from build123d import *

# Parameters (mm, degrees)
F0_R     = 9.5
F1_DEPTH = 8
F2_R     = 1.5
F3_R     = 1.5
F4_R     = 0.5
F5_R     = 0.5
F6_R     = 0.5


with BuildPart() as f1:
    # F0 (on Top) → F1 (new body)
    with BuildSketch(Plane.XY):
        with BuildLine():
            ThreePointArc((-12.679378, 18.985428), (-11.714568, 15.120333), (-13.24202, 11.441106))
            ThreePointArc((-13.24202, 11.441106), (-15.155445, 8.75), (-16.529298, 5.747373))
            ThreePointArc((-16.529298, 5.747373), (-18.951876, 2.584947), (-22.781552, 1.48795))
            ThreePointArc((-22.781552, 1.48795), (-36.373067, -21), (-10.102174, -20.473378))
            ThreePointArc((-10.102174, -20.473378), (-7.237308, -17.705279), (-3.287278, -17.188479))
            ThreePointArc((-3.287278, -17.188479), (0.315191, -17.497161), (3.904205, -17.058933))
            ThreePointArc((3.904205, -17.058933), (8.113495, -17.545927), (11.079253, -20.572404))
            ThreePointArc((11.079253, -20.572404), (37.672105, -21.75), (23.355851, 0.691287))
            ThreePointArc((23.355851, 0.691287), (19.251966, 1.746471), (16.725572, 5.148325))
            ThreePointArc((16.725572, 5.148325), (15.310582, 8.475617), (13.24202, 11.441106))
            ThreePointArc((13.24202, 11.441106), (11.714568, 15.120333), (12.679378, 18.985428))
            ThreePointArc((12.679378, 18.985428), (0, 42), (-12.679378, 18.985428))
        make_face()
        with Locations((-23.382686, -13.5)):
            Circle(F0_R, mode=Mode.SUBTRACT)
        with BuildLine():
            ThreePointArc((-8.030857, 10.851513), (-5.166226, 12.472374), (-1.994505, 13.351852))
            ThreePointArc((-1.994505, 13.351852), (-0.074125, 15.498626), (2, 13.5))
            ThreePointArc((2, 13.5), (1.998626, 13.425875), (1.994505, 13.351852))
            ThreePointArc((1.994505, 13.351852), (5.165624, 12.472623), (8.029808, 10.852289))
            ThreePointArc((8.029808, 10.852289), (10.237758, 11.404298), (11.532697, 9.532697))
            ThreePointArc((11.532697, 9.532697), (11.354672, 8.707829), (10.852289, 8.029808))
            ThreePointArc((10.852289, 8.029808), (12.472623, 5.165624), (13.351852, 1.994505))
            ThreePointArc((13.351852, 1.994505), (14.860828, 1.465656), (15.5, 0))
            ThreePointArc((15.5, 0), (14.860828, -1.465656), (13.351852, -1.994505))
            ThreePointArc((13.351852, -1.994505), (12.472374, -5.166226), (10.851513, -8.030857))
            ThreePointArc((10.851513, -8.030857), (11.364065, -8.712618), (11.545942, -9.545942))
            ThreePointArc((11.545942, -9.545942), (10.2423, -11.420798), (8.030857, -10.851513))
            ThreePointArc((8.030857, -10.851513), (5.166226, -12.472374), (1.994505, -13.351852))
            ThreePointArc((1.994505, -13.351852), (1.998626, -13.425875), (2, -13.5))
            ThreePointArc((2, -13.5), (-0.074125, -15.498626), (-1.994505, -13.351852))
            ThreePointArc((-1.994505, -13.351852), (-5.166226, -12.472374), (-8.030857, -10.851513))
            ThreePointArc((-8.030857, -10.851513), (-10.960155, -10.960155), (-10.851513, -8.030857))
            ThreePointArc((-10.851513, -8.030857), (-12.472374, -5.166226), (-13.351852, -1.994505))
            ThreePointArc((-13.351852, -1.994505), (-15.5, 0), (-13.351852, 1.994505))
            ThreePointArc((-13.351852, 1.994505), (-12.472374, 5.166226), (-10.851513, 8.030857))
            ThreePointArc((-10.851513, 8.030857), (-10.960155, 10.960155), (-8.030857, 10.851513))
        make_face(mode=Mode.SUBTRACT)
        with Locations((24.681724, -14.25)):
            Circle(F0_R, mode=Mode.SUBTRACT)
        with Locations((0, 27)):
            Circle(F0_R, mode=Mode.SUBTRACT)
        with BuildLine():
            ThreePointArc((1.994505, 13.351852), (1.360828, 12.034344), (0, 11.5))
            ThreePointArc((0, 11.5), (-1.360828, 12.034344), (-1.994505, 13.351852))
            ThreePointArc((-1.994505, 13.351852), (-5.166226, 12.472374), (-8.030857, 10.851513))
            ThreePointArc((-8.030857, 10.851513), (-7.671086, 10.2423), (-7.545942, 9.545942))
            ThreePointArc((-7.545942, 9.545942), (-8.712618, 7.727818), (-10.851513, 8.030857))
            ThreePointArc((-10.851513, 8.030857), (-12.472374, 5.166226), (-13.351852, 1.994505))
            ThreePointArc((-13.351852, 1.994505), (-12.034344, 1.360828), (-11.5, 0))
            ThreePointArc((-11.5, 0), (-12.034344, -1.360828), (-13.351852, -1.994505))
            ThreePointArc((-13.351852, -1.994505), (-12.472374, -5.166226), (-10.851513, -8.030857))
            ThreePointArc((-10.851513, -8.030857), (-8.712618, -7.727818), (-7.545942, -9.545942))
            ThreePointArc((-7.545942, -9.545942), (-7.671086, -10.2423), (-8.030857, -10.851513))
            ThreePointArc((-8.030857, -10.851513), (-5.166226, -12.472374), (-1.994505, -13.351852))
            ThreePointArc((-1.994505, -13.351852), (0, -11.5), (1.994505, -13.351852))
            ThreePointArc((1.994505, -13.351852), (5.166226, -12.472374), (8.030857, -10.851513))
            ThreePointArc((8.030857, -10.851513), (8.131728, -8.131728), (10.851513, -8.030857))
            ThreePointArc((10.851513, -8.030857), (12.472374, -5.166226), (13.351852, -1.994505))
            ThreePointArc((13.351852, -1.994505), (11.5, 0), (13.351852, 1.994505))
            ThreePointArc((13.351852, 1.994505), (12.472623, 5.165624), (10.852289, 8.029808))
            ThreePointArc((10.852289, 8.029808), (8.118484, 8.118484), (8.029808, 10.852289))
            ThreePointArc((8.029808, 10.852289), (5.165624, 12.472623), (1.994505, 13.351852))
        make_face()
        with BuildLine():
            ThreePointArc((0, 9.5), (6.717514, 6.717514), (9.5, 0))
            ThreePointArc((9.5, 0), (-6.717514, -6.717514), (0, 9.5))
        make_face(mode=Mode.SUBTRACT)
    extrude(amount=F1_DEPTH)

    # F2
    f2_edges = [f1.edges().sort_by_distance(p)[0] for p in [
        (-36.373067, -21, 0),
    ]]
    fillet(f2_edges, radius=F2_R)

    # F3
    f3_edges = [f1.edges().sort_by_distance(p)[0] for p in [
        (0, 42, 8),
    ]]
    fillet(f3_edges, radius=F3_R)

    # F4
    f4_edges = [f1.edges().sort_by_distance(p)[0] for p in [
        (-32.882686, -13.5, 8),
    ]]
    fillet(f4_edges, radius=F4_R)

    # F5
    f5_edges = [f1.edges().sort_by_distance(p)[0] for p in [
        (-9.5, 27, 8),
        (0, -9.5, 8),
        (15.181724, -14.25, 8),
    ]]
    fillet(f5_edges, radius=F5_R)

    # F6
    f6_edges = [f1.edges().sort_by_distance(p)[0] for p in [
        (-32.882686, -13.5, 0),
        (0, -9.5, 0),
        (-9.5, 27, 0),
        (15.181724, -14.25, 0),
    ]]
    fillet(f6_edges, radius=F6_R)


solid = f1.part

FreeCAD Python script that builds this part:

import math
import FreeCAD as App
import Part
import Sketcher

V = App.Vector


def edges_at(feature, points):
    """Names of the edges that pass closest to the given points."""
    edges = feature.Shape.Edges
    near = lambda p: min(range(len(edges)), key=lambda i: edges[i].distToShape(Part.Vertex(*p))[0])
    return sorted({f"Edge{near(p) + 1}" for p in points})

doc = App.newDocument("Part")
body = doc.addObject("PartDesign::Body", "Body")

sketch1 = doc.addObject("Sketcher::SketchObject", "Sketch")
body.addObject(sketch1)
sketch1.AttachmentSupport = (doc.XY_Plane, [""])
sketch1.MapMode = "FlatFace"
sketch1.addGeometry([
    Part.ArcOfCircle(Part.Circle(V(-18.05, 15.59, 0), V(0, 0, 1), 6.35), math.radians(-41), math.radians(32)),
    Part.ArcOfCircle(Part.Circle(V(0, 0, 0), V(0, 0, 1), 17.5), math.radians(139), math.radians(161)),
    Part.ArcOfCircle(Part.Circle(V(-22.53, 7.83, 0), V(0, 0, 1), 6.35), math.radians(-92), math.radians(-19)),
    Part.ArcOfCircle(Part.Circle(V(-23.38, -13.5, 0), V(0, 0, 1), 15), math.radians(88), math.radians(332)),
    Part.ArcOfCircle(Part.Circle(V(-4.48, -23.43, 0), V(0, 0, 1), 6.35), math.radians(79), math.radians(152)),
    Part.ArcOfCircle(Part.Circle(V(0, 0, 0), V(0, 0, 1), 17.5), math.radians(-101), math.radians(-77)),
    Part.ArcOfCircle(Part.Circle(V(5.32, -23.25, 0), V(0, 0, 1), 6.35), math.radians(25), math.radians(103)),
    Part.ArcOfCircle(Part.Circle(V(24.68, -14.25, 0), V(0, 0, 1), 15), math.radians(-155), math.radians(95)),
    Part.ArcOfCircle(Part.Circle(V(22.79, 7.02, 0), V(0, 0, 1), 6.35), math.radians(-163), math.radians(-85)),
    Part.ArcOfCircle(Part.Circle(V(0, 0, 0), V(0, 0, 1), 17.5), math.radians(17), math.radians(41)),
    Part.ArcOfCircle(Part.Circle(V(18.05, 15.59, 0), V(0, 0, 1), 6.35), math.radians(148), math.radians(221)),
    Part.ArcOfCircle(Part.Circle(V(0, 27, 0), V(0, 0, 1), 15), math.radians(-32), math.radians(212)),
    Part.Circle(V(-23.38, -13.5, 0), V(0, 0, 1), 9.5),
    Part.ArcOfCircle(Part.Circle(V(-9.55, -9.55, 0), V(0, 0, 1), 2), math.radians(131), math.radians(319)),
    Part.ArcOfCircle(Part.Circle(V(-9.55, -9.55, 0), V(0, 0, 1), 2), math.radians(0), math.radians(131)),
    Part.ArcOfCircle(Part.Circle(V(-9.55, -9.55, 0), V(0, 0, 1), 2), math.radians(-41), math.radians(0)),
    Part.ArcOfCircle(Part.Circle(V(0, -13.5, 0), V(0, 0, 1), 2), math.radians(176), math.radians(360)),
    Part.ArcOfCircle(Part.Circle(V(0, -13.5, 0), V(0, 0, 1), 2), math.radians(4), math.radians(176)),
    Part.ArcOfCircle(Part.Circle(V(0, -13.5, 0), V(0, 0, 1), 2), math.radians(0), math.radians(4.25)),
    Part.ArcOfCircle(Part.Circle(V(-13.5, 0, 0), V(0, 0, 1), 2), math.radians(86), math.radians(274)),
    Part.ArcOfCircle(Part.Circle(V(-13.5, 0, 0), V(0, 0, 1), 2), math.radians(0), math.radians(86)),
    Part.ArcOfCircle(Part.Circle(V(-13.5, 0, 0), V(0, 0, 1), 2), math.radians(-86), math.radians(0)),
    Part.ArcOfCircle(Part.Circle(V(0, 0, 0), V(0, 0, 1), 9.5), math.radians(90), math.radians(360)),
    Part.ArcOfCircle(Part.Circle(V(0, 0, 0), V(0, 0, 1), 9.5), math.radians(0), math.radians(90)),
    Part.ArcOfCircle(Part.Circle(V(9.55, -9.55, 0), V(0, 0, 1), 2), math.radians(-139), math.radians(0)),
    Part.ArcOfCircle(Part.Circle(V(9.55, -9.55, 0), V(0, 0, 1), 2), math.radians(49), math.radians(221)),
    Part.ArcOfCircle(Part.Circle(V(9.55, -9.55, 0), V(0, 0, 1), 2), math.radians(0), math.radians(49)),
    Part.Circle(V(24.68, -14.25, 0), V(0, 0, 1), 9.5),
    Part.ArcOfCircle(Part.Circle(V(13.5, 0, 0), V(0, 0, 1), 2), math.radians(0), math.radians(94)),
    Part.ArcOfCircle(Part.Circle(V(13.5, 0, 0), V(0, 0, 1), 2), math.radians(-94), math.radians(0)),
    Part.ArcOfCircle(Part.Circle(V(13.5, 0, 0), V(0, 0, 1), 2), math.radians(94), math.radians(266)),
    Part.ArcOfCircle(Part.Circle(V(-9.55, 9.55, 0), V(0, 0, 1), 2), math.radians(41), math.radians(229)),
    Part.ArcOfCircle(Part.Circle(V(-9.55, 9.55, 0), V(0, 0, 1), 2), math.radians(0), math.radians(41)),
    Part.ArcOfCircle(Part.Circle(V(-9.55, 9.55, 0), V(0, 0, 1), 2), math.radians(-131), math.radians(0)),
    Part.ArcOfCircle(Part.Circle(V(0, 13.5, 0), V(0, 0, 1), 2), math.radians(0), math.radians(184)),
    Part.ArcOfCircle(Part.Circle(V(0, 13.5, 0), V(0, 0, 1), 2), math.radians(-4.25), math.radians(0)),
    Part.ArcOfCircle(Part.Circle(V(0, 13.5, 0), V(0, 0, 1), 2), math.radians(-90), math.radians(-4)),
    Part.ArcOfCircle(Part.Circle(V(0, 13.5, 0), V(0, 0, 1), 2), math.radians(-176), math.radians(-90)),
    Part.Circle(V(0, 27, 0), V(0, 0, 1), 9.5),
    Part.ArcOfCircle(Part.Circle(V(9.53, 9.53, 0), V(0, 0, 1), 2), math.radians(0), math.radians(139)),
    Part.ArcOfCircle(Part.Circle(V(9.53, 9.53, 0), V(0, 0, 1), 2), math.radians(-49), math.radians(0)),
    Part.ArcOfCircle(Part.Circle(V(9.53, 9.53, 0), V(0, 0, 1), 2), math.radians(139), math.radians(311)),
], False)
sketch1.addConstraint([
    Sketcher.Constraint("Tangent", 0, 1, 1, 1),
    Sketcher.Constraint("Tangent", 1, 2, 2, 2),
    Sketcher.Constraint("Tangent", 2, 1, 3, 1),
    Sketcher.Constraint("Tangent", 3, 2, 4, 2),
    Sketcher.Constraint("Tangent", 4, 1, 5, 1),
    Sketcher.Constraint("Tangent", 5, 2, 6, 2),
    Sketcher.Constraint("Tangent", 6, 1, 7, 1),
    Sketcher.Constraint("Tangent", 7, 2, 8, 2),
    Sketcher.Constraint("Tangent", 8, 1, 9, 1),
    Sketcher.Constraint("Tangent", 9, 2, 10, 2),
    Sketcher.Constraint("Tangent", 10, 1, 11, 1),
    Sketcher.Constraint("Tangent", 11, 2, 0, 2),
    Sketcher.Constraint("Tangent", 13, 1, 14, 2),
    Sketcher.Constraint("Tangent", 14, 1, 15, 2),
    Sketcher.Constraint("Tangent", 15, 1, 13, 2),
    Sketcher.Constraint("Tangent", 16, 1, 17, 2),
    Sketcher.Constraint("Coincident", 17, 1, 18, 2),
    Sketcher.Constraint("Coincident", 18, 1, 16, 2),
    Sketcher.Constraint("Tangent", 19, 1, 20, 2),
    Sketcher.Constraint("Tangent", 20, 1, 21, 2),
    Sketcher.Constraint("Tangent", 21, 1, 19, 2),
    Sketcher.Constraint("Tangent", 22, 1, 23, 2),
    Sketcher.Constraint("Coincident", 23, 1, 22, 2),
    Sketcher.Constraint("Tangent", 24, 1, 25, 2),
    Sketcher.Constraint("Tangent", 25, 1, 26, 2),
    Sketcher.Constraint("Tangent", 26, 1, 24, 2),
    Sketcher.Constraint("Tangent", 28, 1, 29, 2),
    Sketcher.Constraint("Tangent", 29, 1, 30, 2),
    Sketcher.Constraint("Tangent", 30, 1, 28, 2),
    Sketcher.Constraint("Tangent", 31, 1, 32, 2),
    Sketcher.Constraint("Tangent", 32, 1, 33, 2),
    Sketcher.Constraint("Tangent", 33, 1, 31, 2),
    Sketcher.Constraint("Coincident", 34, 1, 35, 2),
    Sketcher.Constraint("Coincident", 35, 1, 36, 2),
    Sketcher.Constraint("Tangent", 36, 1, 37, 2),
    Sketcher.Constraint("Tangent", 37, 1, 34, 2),
    Sketcher.Constraint("Tangent", 39, 1, 40, 2),
    Sketcher.Constraint("Tangent", 40, 1, 41, 2),
    Sketcher.Constraint("Tangent", 41, 1, 39, 2),
    Sketcher.Constraint("Coincident", 9, 3, -1, 1),
    Sketcher.Constraint("Coincident", 22, 3, -1, 1),
    Sketcher.Constraint("Coincident", 12, 3, 3, 3),
    Sketcher.Constraint("Coincident", 27, 3, 7, 3),
    Sketcher.Constraint("Coincident", 36, 3, 34, 3),
    Sketcher.Constraint("Coincident", 38, 3, 11, 3),
    Sketcher.Constraint("Equal", 0, 2),
    Sketcher.Constraint("Equal", 4, 6),
    Sketcher.Constraint("Equal", 3, 7),
    Sketcher.Constraint("Equal", 6, 8),
    Sketcher.Constraint("Equal", 8, 10),
    Sketcher.Constraint("Equal", 7, 11),
    Sketcher.Constraint("Equal", 15, 16),
    Sketcher.Constraint("Equal", 16, 17),
    Sketcher.Constraint("Equal", 17, 19),
    Sketcher.Constraint("Equal", 12, 22),
    Sketcher.Constraint("Equal", 21, 24),
    Sketcher.Constraint("Equal", 23, 27),
    Sketcher.Constraint("Equal", 26, 28),
    Sketcher.Constraint("Equal", 30, 31),
    Sketcher.Constraint("Equal", 33, 34),
    Sketcher.Constraint("Equal", 18, 35),
    Sketcher.Constraint("Equal", 27, 38),
    Sketcher.Constraint("Equal", 37, 39),
    Sketcher.Constraint("Symmetric", 19, 3, 28, 3, -1, 1),
    Sketcher.Constraint("Symmetric", 24, 3, 31, 3, -1, 1),
    Sketcher.Constraint("Symmetric", 16, 3, 34, 3, -1, 1),
    Sketcher.Constraint("Symmetric", 0, 3, 10, 3, -2),
    Sketcher.Constraint("Symmetric", 13, 3, 24, 3, -2),
    Sketcher.Constraint("Symmetric", 0, 1, 9, 2, -2),
    Sketcher.Constraint("Symmetric", 16, 1, 17, 1, -2),
    Sketcher.Constraint("Symmetric", 21, 1, 29, 1, -2),
    Sketcher.Constraint("PointOnObject", 5, 3, -2),
    Sketcher.Constraint("PointOnObject", 20, 1, -1),
    Sketcher.Constraint("PointOnObject", 22, 1, -2),
    Sketcher.Constraint("PointOnObject", 23, 1, -1),
    Sketcher.Constraint("PointOnObject", 28, 1, -1),
    Sketcher.Constraint("PointOnObject", 36, 1, -2),
    Sketcher.Constraint("Horizontal", 12, 3, 16, 3),
    Sketcher.Constraint("Horizontal", 26, 3, 14, 1),
    Sketcher.Constraint("Horizontal", 17, 3, 18, 1),
    Sketcher.Constraint("Horizontal", 15, 1, 24, 1),
    Sketcher.Constraint("Horizontal", 13, 1, 25, 1),
    Sketcher.Constraint("Horizontal", 14, 1, 26, 1),
    Sketcher.Constraint("Horizontal", 19, 1, 30, 1),
    Sketcher.Constraint("Horizontal", 33, 3, 32, 1),
    Sketcher.Constraint("Horizontal", 37, 3, 34, 1),
    Sketcher.Constraint("Horizontal", 35, 1, 37, 1),
    Sketcher.Constraint("Horizontal", 41, 3, 39, 1),
    Sketcher.Constraint("Vertical", 19, 1, 21, 1),
    Sketcher.Constraint("Vertical", 15, 1, 31, 1),
    Sketcher.Constraint("Vertical", 13, 1, 33, 1),
    Sketcher.Constraint("Vertical", 17, 1, 35, 1),
    Sketcher.Constraint("Diameter", 12, 19.0),
    Sketcher.Constraint("Radius", 3, 15.0),
    Sketcher.Constraint("Radius", 13, 2.0),
    Sketcher.Constraint("Radius", 9, 17.5),
    Sketcher.Constraint("Radius", 2, 6.350001),
    Sketcher.Constraint("DistanceY", -1, 1, 11, 3, 27.0),
    Sketcher.Constraint("DistanceY", 3, 3, -1, 1, 13.5),
    Sketcher.Constraint("DistanceX", 19, 3, -1, 1, 13.5),
    Sketcher.Constraint("DistanceY", 7, 3, -1, 1, 14.25),
    Sketcher.Constraint("Radius", 1, 17.49997),
    Sketcher.Constraint("Radius", 5, 17.500028),
    Sketcher.Constraint("Radius", 18, 1.999494),
    Sketcher.Constraint("DistanceX", -1, 1, 40, 3, 9.5327),
    Sketcher.Constraint("DistanceY", -1, 1, 2, 3, 7.832849),
    Sketcher.Constraint("DistanceX", 4, 3, -1, 1, 4.480091),
    Sketcher.Constraint("DistanceX", 13, 3, -1, 1, 9.545942),
    Sketcher.Constraint("DistanceY", 13, 3, -1, 1, 9.545942),
    Sketcher.Constraint("DistanceX", -1, 1, 7, 2, 23.355851),
    Sketcher.Constraint("DistanceY", 16, 1, -1, 1, 13.351852),
    Sketcher.Constraint("DistanceX", -1, 1, 29, 1, 13.351852),
    Sketcher.Constraint("DistanceX", -1, 1, 40, 1, 10.852289),
    Sketcher.Constraint("DistanceX", -1, 1, 41, 1, 8.029808),
    Sketcher.Constraint("DistanceY", -1, 1, 41, 1, 10.852289),
    Sketcher.Constraint("DistanceX", 13, 1, -1, 1, 10.851513),
    Sketcher.Constraint("DistanceX", 15, 1, -1, 1, 8.030857),
])
pad1 = doc.addObject("PartDesign::Pad", "Pad")
body.addObject(pad1)
pad1.Profile = sketch1
pad1.Length = 8
doc.recompute()

fillet = doc.addObject("PartDesign::Fillet", "Fillet")
body.addObject(fillet)
fillet.Base = (pad1, edges_at(pad1, [(-36.373, -21, 0)]))
fillet.Radius = 1.5
doc.recompute()

fillet2 = doc.addObject("PartDesign::Fillet", "Fillet001")
body.addObject(fillet2)
fillet2.Base = (fillet, edges_at(fillet, [(0, 42, 8)]))
fillet2.Radius = 1.5
doc.recompute()

fillet3 = doc.addObject("PartDesign::Fillet", "Fillet002")
body.addObject(fillet3)
fillet3.Base = (fillet2, edges_at(fillet2, [(-32.883, -13.5, 8)]))
fillet3.Radius = 0.5
doc.recompute()

fillet4 = doc.addObject("PartDesign::Fillet", "Fillet003")
body.addObject(fillet4)
fillet4.Base = (fillet3, edges_at(fillet3, [(-9.5, 27, 8), (-6.718, -6.718, 8), (15.182, -14.25, 8)]))
fillet4.Radius = 0.5
doc.recompute()

fillet5 = doc.addObject("PartDesign::Fillet", "Fillet004")
body.addObject(fillet5)
fillet5.Base = (fillet4, edges_at(fillet4, [
    (-32.883, -13.5, 0),
    (-6.718, -6.718, 0),
    (-9.5, 27, 0),
    (15.182, -14.25, 0),
]))
fillet5.Radius = 0.5

doc.recompute()
